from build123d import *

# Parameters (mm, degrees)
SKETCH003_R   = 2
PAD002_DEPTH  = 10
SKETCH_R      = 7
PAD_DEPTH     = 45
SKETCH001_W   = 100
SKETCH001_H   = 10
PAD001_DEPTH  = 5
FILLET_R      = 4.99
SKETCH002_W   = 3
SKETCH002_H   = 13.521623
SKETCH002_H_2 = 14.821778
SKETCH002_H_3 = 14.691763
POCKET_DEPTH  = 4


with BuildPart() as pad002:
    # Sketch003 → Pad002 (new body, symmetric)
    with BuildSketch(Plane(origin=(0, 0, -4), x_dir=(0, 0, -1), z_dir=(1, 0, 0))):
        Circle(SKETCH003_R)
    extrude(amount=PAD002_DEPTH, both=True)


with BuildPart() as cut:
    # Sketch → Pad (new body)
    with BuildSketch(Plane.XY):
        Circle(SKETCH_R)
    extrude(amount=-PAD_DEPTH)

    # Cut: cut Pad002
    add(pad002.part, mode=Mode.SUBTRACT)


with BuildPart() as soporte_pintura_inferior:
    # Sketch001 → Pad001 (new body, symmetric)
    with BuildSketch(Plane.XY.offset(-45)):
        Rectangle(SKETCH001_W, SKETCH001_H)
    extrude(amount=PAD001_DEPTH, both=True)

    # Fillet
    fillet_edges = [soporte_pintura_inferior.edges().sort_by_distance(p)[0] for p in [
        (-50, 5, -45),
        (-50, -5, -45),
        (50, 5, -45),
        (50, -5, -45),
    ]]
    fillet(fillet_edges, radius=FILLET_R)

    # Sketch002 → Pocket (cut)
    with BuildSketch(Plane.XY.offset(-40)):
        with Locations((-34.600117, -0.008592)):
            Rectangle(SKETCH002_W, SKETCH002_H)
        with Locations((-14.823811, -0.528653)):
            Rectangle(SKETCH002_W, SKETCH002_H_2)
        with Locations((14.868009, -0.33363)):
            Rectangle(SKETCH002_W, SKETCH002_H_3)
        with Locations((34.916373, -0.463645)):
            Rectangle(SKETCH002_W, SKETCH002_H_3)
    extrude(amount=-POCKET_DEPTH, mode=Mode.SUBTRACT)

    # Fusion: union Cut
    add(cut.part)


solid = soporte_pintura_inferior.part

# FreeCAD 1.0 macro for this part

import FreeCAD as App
import Part
import Sketcher
from FreeCAD import Vector


def edges_at(feature, points):
    """Names of the edges that pass closest to the given points."""
    edges = feature.Shape.Edges
    near = lambda p: min(range(len(edges)), key=lambda i: edges[i].distToShape(Part.Vertex(*p))[0])
    return sorted({f"Edge{near(p) + 1}" for p in points})


def add_polygon(sketch, points):
    """Adds a closed chain of lines whose ends are joined by coincident constraints."""
    first, n = sketch.GeometryCount, len(points)
    for a, b in zip(points, points[1:] + points[:1]):
        sketch.addGeometry(Part.LineSegment(App.Vector(*a, 0), App.Vector(*b, 0)), False)
    for i in range(n):
        sketch.addConstraint(Sketcher.Constraint("Coincident", first + i, 2, first + (i + 1) % n, 1))

doc = App.newDocument("Part")
body = doc.addObject("PartDesign::Body", "Body")

# Sketch on YZ plane
sketch1 = body.newObject("Sketcher::SketchObject", "Sketch")
sketch1.AttachmentSupport = (doc.getObject("YZ_Plane"), [""])
sketch1.MapMode = "FlatFace"
sketch1.addGeometry(Part.Circle(Vector(0, -4, 0), Vector(0, 0, 1), 2), False)
sketch1.addConstraint(Sketcher.Constraint("PointOnObject", 0, 3, -2))
sketch1.addConstraint(Sketcher.Constraint("Diameter", 0, 4.0))
sketch1.addConstraint(Sketcher.Constraint("DistanceY", 0, 3, -1, 1, 4.0))
pad1 = body.newObject("PartDesign::Pad", "Pad")
pad1.Profile = sketch1
pad1.Length = 20
pad1.Midplane = True
body2 = doc.addObject("PartDesign::Body", "Body001")

# Sketch on XY plane
sketch2 = body2.newObject("Sketcher::SketchObject", "Sketch001")
sketch2.AttachmentSupport = (doc.getObject("XY_Plane001"), [""])
sketch2.MapMode = "FlatFace"
sketch2.addGeometry(Part.Circle(Vector(0, 0, 0), Vector(0, 0, 1), 7), False)
sketch2.addConstraint(Sketcher.Constraint("Coincident", 0, 3, -1, 1))
sketch2.addConstraint(Sketcher.Constraint("Diameter", 0, 14.0))
pad2 = body2.newObject("PartDesign::Pad", "Pad001")
pad2.Profile = sketch2
pad2.Length = 45
pad2.Reversed = True
doc.recompute()

boolean = body2.newObject("PartDesign::Boolean", "Boolean")
boolean.Type = "Cut"
boolean.addObjects([body])
body3 = doc.addObject("PartDesign::Body", "Body002")

# Sketch on XY plane
sketch3 = body3.newObject("Sketcher::SketchObject", "Sketch002")
sketch3.AttachmentSupport = (doc.getObject("XY_Plane002"), [""])
sketch3.MapMode = "FlatFace"
sketch3.AttachmentOffset = App.Placement(Vector(0, 0, -45), App.Rotation())
add_polygon(sketch3, [(-50, 5), (-50, -5), (50, -5), (50, 5)])  # lines 0-3
sketch3.addConstraint(Sketcher.Constraint("Vertical", 0))
sketch3.addConstraint(Sketcher.Constraint("Horizontal", 1))
sketch3.addConstraint(Sketcher.Constraint("Vertical", 2))
sketch3.addConstraint(Sketcher.Constraint("Horizontal", 3))
sketch3.addConstraint(Sketcher.Constraint("Symmetric", 0, 2, 2, 2, -1, 1))
sketch3.addConstraint(Sketcher.Constraint("DistanceX", 1, 1, 1, 2, 100.0))
sketch3.addConstraint(Sketcher.Constraint("DistanceY", 0, 2, 0, 1, 10.0))
pad3 = body3.newObject("PartDesign::Pad", "Pad002")
pad3.Profile = sketch3
pad3.Length = 10
pad3.Midplane = True
doc.recompute()

fillet = body3.newObject("PartDesign::Fillet", "Fillet")
fillet.Base = (pad3, edges_at(pad3, [
    (-50, 5, -45),
    (-50, -5, -45),
    (50, 5, -45),
    (50, -5, -45),
]))
fillet.Radius = 4.99

# Sketch on XY plane
sketch4 = body3.newObject("Sketcher::SketchObject", "Sketch003")
sketch4.AttachmentSupport = (doc.getObject("XY_Plane002"), [""])
sketch4.MapMode = "FlatFace"
sketch4.AttachmentOffset = App.Placement(Vector(0, 0, -40), App.Rotation())
add_polygon(sketch4, [(-36.100117, 6.752219), (-36.100117, -6.769404), (-33.100117, -6.769404), (-33.100117, 6.752219)])  # lines 0-3
add_polygon(sketch4, [(-16.323811, 6.882236), (-16.323811, -7.939542), (-13.323811, -7.939542), (-13.323811, 6.882236)])  # lines 4-7
add_polygon(sketch4, [(13.368009, 7.012251), (13.368009, -7.679512), (16.368009, -7.679512), (16.368009, 7.012251)])  # lines 8-11
add_polygon(sketch4, [(33.416373, 6.882237), (33.416373, -7.809526), (36.416373, -7.809526), (36.416373, 6.882237)])  # lines 12-15
sketch4.addConstraint(Sketcher.Constraint("Vertical", 0))
sketch4.addConstraint(Sketcher.Constraint("Horizontal", 1))
sketch4.addConstraint(Sketcher.Constraint("Vertical", 2))
sketch4.addConstraint(Sketcher.Constraint("Horizontal", 3))
sketch4.addConstraint(Sketcher.Constraint("Vertical", 4))
sketch4.addConstraint(Sketcher.Constraint("Horizontal", 5))
sketch4.addConstraint(Sketcher.Constraint("Vertical", 6))
sketch4.addConstraint(Sketcher.Constraint("Horizontal", 7))
sketch4.addConstraint(Sketcher.Constraint("Vertical", 8))
sketch4.addConstraint(Sketcher.Constraint("Horizontal", 9))
sketch4.addConstraint(Sketcher.Constraint("Vertical", 10))
sketch4.addConstraint(Sketcher.Constraint("Horizontal", 11))
sketch4.addConstraint(Sketcher.Constraint("Vertical", 12))
sketch4.addConstraint(Sketcher.Constraint("Horizontal", 13))
sketch4.addConstraint(Sketcher.Constraint("Vertical", 14))
sketch4.addConstraint(Sketcher.Constraint("Horizontal", 15))
sketch4.addConstraint(Sketcher.Constraint("Horizontal", 7, 2, 14, 2))
sketch4.addConstraint(Sketcher.Constraint("Equal", 3, 5))
sketch4.addConstraint(Sketcher.Constraint("Equal", 7, 9))
sketch4.addConstraint(Sketcher.Constraint("Equal", 11, 13))
sketch4.addConstraint(Sketcher.Constraint("Equal", 10, 12))
sketch4.addConstraint(Sketcher.Constraint("DistanceX", 1, 1, 1, 2, 3.0))
sketch4.addConstraint(Sketcher.Constraint("DistanceY", 0, 2, 0, 1, 13.521623))
sketch4.addConstraint(Sketcher.Constraint("DistanceY", 4, 2, 4, 1, 14.821778))
sketch4.addConstraint(Sketcher.Constraint("DistanceY", 8, 2, 8, 1, 14.691763))
sketch4.addConstraint(Sketcher.Constraint("DistanceY", -1, 1, 2, 2, 6.752219))
sketch4.addConstraint(Sketcher.Constraint("DistanceX", 4, 2, -1, 1, 16.323811))
sketch4.addConstraint(Sketcher.Constraint("DistanceX", -1, 1, 8, 2, 13.368009))
sketch4.addConstraint(Sketcher.Constraint("DistanceY", 8, 2, -1, 1, 7.679512))
sketch4.addConstraint(Sketcher.Constraint("DistanceY", 4, 2, 1, 2, 1.170139))
sketch4.addConstraint(Sketcher.Constraint("DistanceX", 0, 2, -1, 1, 36.100117))
sketch4.addConstraint(Sketcher.Constraint("DistanceX", -1, 1, 12, 2, 33.416373))
pocket1 = body3.newObject("PartDesign::Pocket", "Pocket")
pocket1.Profile = sketch4
pocket1.Length = 4
doc.recompute()

boolean2 = body3.newObject("PartDesign::Boolean", "Boolean001")
boolean2.Type = "Fuse"
boolean2.addObjects([body2])

doc.recompute()
